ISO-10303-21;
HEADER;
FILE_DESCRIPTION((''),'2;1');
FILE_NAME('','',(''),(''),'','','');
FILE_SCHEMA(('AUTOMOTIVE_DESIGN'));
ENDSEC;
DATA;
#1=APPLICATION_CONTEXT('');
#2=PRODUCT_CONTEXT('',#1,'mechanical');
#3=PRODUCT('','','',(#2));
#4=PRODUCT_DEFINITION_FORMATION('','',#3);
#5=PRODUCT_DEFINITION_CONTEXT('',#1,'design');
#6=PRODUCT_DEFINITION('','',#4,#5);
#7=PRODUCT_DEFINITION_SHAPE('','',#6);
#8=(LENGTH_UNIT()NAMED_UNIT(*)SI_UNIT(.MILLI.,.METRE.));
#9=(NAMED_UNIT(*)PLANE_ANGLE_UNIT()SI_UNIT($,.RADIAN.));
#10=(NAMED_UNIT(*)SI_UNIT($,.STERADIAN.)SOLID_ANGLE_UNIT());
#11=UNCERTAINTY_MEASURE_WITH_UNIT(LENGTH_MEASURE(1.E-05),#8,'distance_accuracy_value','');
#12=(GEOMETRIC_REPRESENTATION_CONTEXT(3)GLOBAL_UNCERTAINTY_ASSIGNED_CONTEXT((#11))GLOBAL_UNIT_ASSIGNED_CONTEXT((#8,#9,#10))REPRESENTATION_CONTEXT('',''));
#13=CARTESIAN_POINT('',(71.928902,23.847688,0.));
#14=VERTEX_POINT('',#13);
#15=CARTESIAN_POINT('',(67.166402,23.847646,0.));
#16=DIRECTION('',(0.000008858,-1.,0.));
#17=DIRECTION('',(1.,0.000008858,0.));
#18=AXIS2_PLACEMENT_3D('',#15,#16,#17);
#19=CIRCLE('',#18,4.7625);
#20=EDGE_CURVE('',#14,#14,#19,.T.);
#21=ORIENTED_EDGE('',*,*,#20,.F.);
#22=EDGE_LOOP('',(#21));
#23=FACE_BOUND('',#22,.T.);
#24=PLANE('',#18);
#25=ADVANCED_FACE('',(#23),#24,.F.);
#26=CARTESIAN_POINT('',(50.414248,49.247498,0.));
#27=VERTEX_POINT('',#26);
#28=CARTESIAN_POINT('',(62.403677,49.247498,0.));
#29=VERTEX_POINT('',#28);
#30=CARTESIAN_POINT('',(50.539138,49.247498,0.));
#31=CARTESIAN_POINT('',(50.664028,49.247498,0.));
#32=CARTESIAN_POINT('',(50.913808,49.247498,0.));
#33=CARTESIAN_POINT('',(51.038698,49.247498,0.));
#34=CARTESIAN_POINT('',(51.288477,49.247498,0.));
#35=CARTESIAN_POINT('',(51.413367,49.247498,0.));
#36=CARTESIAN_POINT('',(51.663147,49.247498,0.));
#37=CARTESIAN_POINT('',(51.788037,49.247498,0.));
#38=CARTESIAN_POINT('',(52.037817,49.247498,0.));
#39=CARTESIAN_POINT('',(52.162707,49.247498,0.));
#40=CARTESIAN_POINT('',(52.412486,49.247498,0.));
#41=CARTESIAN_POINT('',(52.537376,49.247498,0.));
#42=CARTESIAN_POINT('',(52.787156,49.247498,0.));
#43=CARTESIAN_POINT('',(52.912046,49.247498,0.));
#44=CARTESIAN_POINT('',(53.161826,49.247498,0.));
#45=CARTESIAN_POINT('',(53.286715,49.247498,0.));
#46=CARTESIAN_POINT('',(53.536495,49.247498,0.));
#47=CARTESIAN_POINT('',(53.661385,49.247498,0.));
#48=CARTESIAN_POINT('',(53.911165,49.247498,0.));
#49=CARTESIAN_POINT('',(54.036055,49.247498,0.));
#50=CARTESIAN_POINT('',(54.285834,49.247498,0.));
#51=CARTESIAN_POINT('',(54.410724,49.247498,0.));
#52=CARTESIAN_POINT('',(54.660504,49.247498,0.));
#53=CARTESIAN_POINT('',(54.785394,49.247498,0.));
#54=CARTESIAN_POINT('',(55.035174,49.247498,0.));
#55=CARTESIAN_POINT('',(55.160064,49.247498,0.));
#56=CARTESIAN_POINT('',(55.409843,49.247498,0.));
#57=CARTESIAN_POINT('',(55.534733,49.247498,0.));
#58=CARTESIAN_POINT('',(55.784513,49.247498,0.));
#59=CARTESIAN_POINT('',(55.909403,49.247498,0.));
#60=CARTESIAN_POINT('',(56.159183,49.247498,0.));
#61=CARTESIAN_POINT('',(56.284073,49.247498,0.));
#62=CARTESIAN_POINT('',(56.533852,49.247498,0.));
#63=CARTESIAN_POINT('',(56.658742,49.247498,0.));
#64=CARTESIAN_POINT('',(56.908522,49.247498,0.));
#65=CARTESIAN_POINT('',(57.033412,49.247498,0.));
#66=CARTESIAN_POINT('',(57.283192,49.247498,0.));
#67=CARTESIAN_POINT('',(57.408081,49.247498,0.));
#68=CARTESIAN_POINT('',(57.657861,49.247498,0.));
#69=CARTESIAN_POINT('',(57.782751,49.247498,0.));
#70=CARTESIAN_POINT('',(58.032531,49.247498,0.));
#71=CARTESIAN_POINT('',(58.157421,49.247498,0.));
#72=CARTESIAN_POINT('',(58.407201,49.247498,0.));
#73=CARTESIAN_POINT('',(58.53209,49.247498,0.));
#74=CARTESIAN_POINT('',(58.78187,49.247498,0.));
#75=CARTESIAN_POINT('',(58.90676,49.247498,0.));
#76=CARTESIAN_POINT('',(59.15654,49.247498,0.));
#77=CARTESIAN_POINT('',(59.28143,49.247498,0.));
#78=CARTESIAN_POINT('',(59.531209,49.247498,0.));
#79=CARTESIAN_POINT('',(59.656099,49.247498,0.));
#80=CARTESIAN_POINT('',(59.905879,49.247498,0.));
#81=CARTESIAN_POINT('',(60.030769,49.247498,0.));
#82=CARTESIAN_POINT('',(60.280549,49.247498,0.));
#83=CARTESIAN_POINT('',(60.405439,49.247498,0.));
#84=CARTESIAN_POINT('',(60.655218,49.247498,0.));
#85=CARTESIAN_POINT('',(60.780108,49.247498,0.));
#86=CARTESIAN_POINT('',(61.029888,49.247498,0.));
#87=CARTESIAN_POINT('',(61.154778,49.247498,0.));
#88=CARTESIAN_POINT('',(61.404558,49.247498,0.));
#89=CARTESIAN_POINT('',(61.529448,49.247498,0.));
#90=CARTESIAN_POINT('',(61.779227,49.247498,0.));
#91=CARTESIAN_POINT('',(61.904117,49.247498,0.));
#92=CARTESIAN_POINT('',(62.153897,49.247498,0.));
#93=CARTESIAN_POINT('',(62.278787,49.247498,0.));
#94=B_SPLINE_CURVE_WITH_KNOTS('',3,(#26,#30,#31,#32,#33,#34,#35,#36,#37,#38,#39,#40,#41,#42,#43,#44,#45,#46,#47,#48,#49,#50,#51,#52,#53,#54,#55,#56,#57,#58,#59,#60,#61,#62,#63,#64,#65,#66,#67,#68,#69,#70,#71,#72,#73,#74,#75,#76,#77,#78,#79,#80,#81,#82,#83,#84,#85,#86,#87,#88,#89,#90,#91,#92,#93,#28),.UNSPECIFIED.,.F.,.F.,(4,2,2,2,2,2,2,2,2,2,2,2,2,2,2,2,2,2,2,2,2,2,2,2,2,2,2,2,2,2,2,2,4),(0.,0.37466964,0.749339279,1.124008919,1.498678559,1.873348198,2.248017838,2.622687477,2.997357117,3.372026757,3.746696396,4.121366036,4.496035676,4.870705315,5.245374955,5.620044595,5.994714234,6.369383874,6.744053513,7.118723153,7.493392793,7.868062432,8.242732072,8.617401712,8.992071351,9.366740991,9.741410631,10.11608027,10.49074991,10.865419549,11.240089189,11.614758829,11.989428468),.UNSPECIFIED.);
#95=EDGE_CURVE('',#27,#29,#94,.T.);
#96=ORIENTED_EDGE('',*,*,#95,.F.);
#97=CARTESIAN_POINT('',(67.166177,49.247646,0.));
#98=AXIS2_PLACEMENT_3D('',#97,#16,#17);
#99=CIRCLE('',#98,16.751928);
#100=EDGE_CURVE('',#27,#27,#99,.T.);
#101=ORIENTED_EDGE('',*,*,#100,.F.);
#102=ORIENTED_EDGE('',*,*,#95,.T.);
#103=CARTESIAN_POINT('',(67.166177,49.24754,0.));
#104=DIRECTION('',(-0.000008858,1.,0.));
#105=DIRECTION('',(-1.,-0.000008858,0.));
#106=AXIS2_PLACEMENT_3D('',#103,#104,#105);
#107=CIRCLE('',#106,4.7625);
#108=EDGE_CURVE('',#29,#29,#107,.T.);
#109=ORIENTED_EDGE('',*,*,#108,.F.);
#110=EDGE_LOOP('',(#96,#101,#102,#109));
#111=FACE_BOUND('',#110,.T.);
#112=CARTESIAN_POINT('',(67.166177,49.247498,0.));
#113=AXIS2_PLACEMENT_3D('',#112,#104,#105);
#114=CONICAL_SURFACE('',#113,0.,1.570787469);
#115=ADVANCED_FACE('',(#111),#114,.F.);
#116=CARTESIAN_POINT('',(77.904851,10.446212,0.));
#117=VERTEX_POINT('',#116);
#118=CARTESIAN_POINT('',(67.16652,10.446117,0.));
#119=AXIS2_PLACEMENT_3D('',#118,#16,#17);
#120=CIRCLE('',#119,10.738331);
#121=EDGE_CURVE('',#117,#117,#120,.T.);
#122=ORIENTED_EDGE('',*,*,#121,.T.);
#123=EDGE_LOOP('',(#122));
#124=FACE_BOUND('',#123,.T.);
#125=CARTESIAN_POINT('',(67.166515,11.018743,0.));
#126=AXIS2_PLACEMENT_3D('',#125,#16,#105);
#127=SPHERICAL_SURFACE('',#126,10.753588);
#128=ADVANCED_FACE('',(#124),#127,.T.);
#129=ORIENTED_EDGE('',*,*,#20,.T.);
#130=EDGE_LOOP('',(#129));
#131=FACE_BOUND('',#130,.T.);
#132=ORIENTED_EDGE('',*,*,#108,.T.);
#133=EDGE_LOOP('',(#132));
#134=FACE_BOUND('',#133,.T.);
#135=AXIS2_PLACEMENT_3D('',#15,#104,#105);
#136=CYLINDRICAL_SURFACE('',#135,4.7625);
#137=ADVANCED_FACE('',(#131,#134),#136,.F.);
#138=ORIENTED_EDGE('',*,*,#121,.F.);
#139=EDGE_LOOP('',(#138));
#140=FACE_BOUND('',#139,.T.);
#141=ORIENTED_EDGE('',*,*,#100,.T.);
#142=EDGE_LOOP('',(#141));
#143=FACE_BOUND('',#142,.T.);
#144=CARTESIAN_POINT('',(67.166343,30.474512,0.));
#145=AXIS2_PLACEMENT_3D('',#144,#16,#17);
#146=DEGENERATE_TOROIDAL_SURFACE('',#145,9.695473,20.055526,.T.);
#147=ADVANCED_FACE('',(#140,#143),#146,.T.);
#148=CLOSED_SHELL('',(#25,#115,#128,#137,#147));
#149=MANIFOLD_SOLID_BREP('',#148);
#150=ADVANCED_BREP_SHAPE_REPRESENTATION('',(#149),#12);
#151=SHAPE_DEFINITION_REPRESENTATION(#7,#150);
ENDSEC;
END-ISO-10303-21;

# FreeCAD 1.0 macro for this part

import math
import FreeCAD as App
import Part
import Sketcher

V = App.Vector
Q = App.Units.Quantity

doc = App.newDocument("Part")
body = doc.addObject("PartDesign::Body", "Body")

sketch1 = body.newObject("Sketcher::SketchObject", "Sketch")
sketch1.AttachmentSupport = (doc.getObject("XY_Plane"), [""])
sketch1.MapMode = "FlatFace"
sketch1.addGeometry([
    Part.LineSegment(V(67, 0, 0), V(67, 49, 0)),
    Part.LineSegment(V(67, 49, 0), V(50, 49, 0)),
    Part.ArcOfCircle(Part.Circle(V(57, 30, 0), V(0, 0, 1), 20), math.radians(111), math.radians(267)),
    Part.ArcOfCircle(Part.Circle(V(67, 11, 0), V(0, 0, 1), 11), math.radians(-177), math.radians(-90)),
], False)
sketch1.addGeometry(Part.LineSegment(V(67, 0, 0), V(67, 49, 0)), True)
sketch1.addConstraint([
    Sketcher.Constraint("Coincident", 0, 2, 1, 1),
    Sketcher.Constraint("Coincident", 1, 2, 2, 1),
    Sketcher.Constraint("Coincident", 2, 2, 3, 1),
    Sketcher.Constraint("Coincident", 3, 2, 0, 1),
    Sketcher.Constraint("Horizontal", 1),
    Sketcher.Constraint("Coincident", 4, 1, 3, 2),
    Sketcher.Constraint("Parallel", 0, 4),
    Sketcher.Constraint("Radius", 2, 20.055526),
    Sketcher.Constraint("Radius", 3, 10.753588),
    Sketcher.Constraint("DistanceX", 1, 2, 1, 1, 16.751928),
    Sketcher.Constraint("Distance", 4, 48.982491),
    Sketcher.Constraint("DistanceX", -1, 1, 2, 3, 57.47087),
    Sketcher.Constraint("DistanceX", -1, 1, 1, 2, 50.414248),
    Sketcher.Constraint("DistanceX", -1, 1, 2, 2, 56.42819),
    Sketcher.Constraint("DistanceX", -1, 1, 3, 2, 67.166611),
    Sketcher.Constraint("DistanceX", 0, 2, 3, 3, 0.000339),
    Sketcher.Constraint("DistanceY", -1, 1, 2, 3, 30.474426),
])
revolution = body.newObject("PartDesign::Revolution", "Revolution")
revolution.Profile = sketch1
revolution.ReferenceAxis = (sketch1, ["Axis0"])
revolution.Angle = 360

sketch2 = body.newObject("Sketcher::SketchObject", "Sketch001")
sketch2.AttachmentSupport = (doc.getObject("XZ_Plane"), [""])
sketch2.MapMode = "FlatFace"
sketch2.AttachmentOffset = App.Placement(V(0, 0, -49.247051), App.Rotation())
sketch2.addGeometry(Part.Circle(V(67.2, 0, 0), V(0, 0, 1), 4.8), False)
sketch2.addConstraint([
    Sketcher.Constraint("PointOnObject", 0, 3, -1),
    Sketcher.Constraint("Diameter", 0, Q("0.375 in")),
    Sketcher.Constraint("DistanceX", -1, 1, 0, 3, 67.166177),
])
pocket1 = body.newObject("PartDesign::Pocket", "Pocket")
pocket1.Profile = sketch2
pocket1.Type = "TwoLengths"
pocket1.Length = Q("1 in")
pocket1.Length2 = Q("0.1 in")
pocket1.Reversed = True

doc.recompute()
